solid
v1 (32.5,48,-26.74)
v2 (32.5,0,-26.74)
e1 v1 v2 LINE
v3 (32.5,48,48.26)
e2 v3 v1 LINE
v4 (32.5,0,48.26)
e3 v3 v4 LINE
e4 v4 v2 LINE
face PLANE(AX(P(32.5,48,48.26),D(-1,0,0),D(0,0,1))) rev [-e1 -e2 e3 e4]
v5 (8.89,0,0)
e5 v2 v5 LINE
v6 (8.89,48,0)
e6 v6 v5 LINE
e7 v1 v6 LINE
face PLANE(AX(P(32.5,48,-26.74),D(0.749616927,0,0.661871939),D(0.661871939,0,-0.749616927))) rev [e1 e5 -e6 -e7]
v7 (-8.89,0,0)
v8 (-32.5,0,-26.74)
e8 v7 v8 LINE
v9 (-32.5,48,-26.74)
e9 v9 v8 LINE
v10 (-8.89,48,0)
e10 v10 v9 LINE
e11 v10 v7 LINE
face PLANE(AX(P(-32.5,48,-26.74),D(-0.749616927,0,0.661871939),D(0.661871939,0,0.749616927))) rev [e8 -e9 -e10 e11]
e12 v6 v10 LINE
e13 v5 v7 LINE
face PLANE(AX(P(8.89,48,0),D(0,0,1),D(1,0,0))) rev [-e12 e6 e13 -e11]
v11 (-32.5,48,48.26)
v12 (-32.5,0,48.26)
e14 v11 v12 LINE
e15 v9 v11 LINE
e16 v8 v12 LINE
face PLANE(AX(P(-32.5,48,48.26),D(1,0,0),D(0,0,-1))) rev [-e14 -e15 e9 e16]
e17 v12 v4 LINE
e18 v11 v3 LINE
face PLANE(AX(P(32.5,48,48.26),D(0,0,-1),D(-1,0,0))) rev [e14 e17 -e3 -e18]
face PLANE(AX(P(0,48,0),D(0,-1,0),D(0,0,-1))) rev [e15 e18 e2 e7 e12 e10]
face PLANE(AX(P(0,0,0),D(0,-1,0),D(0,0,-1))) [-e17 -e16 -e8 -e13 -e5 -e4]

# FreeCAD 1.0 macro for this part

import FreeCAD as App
import Part
import Sketcher
Q = App.Units.Quantity

doc = App.newDocument("Part")
body = doc.addObject("PartDesign::Body", "Body")

# Sketch on XZ plane
sketch1 = doc.addObject("Sketcher::SketchObject", "Sketch")
body.addObject(sketch1)
sketch1.AttachmentSupport = (doc.XZ_Plane, [""])
sketch1.MapMode = "FlatFace"
sketch1.addGeometry(Part.LineSegment(App.Vector(9, 0, 0), App.Vector(-9, 0, 0)), False)
sketch1.addGeometry(Part.LineSegment(App.Vector(-9, 0, 0), App.Vector(-32, -27, 0)), False)
sketch1.addGeometry(Part.LineSegment(App.Vector(-32, -27, 0), App.Vector(-32, 48, 0)), False)
sketch1.addGeometry(Part.LineSegment(App.Vector(-32, 48, 0), App.Vector(32, 48, 0)), False)
sketch1.addGeometry(Part.LineSegment(App.Vector(32, 48, 0), App.Vector(32, -27, 0)), False)
sketch1.addGeometry(Part.LineSegment(App.Vector(32, -27, 0), App.Vector(9, 0, 0)), False)
sketch1.addConstraint(Sketcher.Constraint("Coincident", 0, 2, 1, 1))
sketch1.addConstraint(Sketcher.Constraint("Coincident", 1, 2, 2, 1))
sketch1.addConstraint(Sketcher.Constraint("Coincident", 2, 2, 3, 1))
sketch1.addConstraint(Sketcher.Constraint("Coincident", 3, 2, 4, 1))
sketch1.addConstraint(Sketcher.Constraint("Coincident", 4, 2, 5, 1))
sketch1.addConstraint(Sketcher.Constraint("Coincident", 5, 2, 0, 1))
sketch1.addConstraint(Sketcher.Constraint("Horizontal", 0))
sketch1.addConstraint(Sketcher.Constraint("Vertical", 2))
sketch1.addConstraint(Sketcher.Constraint("Horizontal", 3))
sketch1.addConstraint(Sketcher.Constraint("Vertical", 4))
sketch1.addConstraint(Sketcher.Constraint("Symmetric", 0, 2, 5, 2, -1, 1))
sketch1.addConstraint(Sketcher.Constraint("Symmetric", 1, 2, 4, 2, -2))
sketch1.addConstraint(Sketcher.Constraint("DistanceX", 3, 1, 3, 2, Q("65 mm")))
sketch1.addConstraint(Sketcher.Constraint("DistanceY", 2, 1, 2, 2, Q("75 mm")))
sketch1.addConstraint(Sketcher.Constraint("DistanceX", 0, 2, 0, 1, Q("17.78 mm")))
sketch1.addConstraint(Sketcher.Constraint("DistanceY", 1, 2, -1, 1, Q("26.74 mm")))
pad1 = doc.addObject("PartDesign::Pad", "Pad")
body.addObject(pad1)
pad1.Profile = sketch1
pad1.Length = 48
pad1.Reversed = True

doc.recompute()
